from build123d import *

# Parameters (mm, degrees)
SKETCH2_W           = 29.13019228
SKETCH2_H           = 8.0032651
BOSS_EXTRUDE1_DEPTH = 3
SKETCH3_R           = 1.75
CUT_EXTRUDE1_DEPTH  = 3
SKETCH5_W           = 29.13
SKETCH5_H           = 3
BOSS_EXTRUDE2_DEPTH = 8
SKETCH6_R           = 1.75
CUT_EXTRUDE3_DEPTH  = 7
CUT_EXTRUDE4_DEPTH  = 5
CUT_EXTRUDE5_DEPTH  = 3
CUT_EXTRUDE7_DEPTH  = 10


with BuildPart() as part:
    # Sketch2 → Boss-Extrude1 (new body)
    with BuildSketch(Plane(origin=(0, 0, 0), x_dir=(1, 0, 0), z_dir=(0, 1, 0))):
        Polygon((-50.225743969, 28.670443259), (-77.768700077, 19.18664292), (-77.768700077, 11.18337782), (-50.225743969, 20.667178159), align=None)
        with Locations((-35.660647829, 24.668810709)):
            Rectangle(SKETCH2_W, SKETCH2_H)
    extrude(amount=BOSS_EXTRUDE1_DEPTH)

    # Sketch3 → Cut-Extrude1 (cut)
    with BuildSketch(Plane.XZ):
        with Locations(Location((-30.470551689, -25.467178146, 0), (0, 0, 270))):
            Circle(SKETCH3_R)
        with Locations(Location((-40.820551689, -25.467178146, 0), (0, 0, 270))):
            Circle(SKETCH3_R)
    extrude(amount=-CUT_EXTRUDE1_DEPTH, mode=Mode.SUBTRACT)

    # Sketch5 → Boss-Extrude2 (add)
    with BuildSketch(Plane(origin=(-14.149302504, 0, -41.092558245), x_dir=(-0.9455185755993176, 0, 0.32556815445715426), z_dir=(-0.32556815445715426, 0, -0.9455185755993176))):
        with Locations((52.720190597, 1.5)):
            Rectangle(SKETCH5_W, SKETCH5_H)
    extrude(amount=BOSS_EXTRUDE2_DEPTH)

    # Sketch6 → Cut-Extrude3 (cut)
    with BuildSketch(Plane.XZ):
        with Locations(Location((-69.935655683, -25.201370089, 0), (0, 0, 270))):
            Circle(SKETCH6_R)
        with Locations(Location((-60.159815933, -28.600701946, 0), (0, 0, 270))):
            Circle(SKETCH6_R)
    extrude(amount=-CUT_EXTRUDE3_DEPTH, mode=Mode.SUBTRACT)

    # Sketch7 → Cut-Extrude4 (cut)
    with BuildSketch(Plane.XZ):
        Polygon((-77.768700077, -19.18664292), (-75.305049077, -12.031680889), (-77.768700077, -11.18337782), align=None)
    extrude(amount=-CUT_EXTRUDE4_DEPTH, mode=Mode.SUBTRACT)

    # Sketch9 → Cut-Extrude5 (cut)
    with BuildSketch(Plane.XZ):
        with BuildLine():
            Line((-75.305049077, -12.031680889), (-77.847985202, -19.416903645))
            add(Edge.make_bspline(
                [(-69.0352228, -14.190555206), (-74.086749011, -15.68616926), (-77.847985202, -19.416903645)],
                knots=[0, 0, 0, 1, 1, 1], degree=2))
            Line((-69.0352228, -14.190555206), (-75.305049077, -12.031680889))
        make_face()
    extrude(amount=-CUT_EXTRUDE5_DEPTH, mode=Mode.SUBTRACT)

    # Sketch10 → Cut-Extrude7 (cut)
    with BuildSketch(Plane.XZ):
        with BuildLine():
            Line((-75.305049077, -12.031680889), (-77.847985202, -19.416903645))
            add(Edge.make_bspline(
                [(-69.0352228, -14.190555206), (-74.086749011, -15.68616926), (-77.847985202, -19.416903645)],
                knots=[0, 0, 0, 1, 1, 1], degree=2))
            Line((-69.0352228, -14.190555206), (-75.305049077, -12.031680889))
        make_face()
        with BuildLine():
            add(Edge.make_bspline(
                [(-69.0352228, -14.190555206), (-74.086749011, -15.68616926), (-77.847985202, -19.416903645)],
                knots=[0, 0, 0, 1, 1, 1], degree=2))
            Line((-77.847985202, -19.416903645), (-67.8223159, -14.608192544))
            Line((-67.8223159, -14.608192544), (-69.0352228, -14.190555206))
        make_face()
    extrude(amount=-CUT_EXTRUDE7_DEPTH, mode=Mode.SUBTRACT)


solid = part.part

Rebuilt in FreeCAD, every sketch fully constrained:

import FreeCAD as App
import Part
import Sketcher
Q = App.Units.Quantity

doc = App.newDocument("Part")
params = doc.addObject("Spreadsheet::Sheet", "Params")
for row, (alias, value) in enumerate([
    ("sketch1_length", "29.13 mm"),
    ("pad1_length", "3 mm"),
    ("sketch2_diameter", "3.5 mm"),
    ("pocket1_length", "3 mm"),
    ("sketch3_height", "3 mm"),
    ("sketch3_width", "29.13 mm"),
    ("pad2_length", "8 mm"),
    ("sketch4_diameter", "3.5 mm"),
    ("pocket2_length", "7 mm"),
    ("pocket3_length", "5 mm"),
    ("pocket4_length", "3 mm"),
    ("pocket5_length", "10 mm"),
], start=1):
    params.set(f"A{row}", alias)
    params.set(f"B{row}", "=" + value)
    params.setAlias(f"B{row}", alias)

body = doc.addObject("PartDesign::Body", "Body")

# Sketch on XZ plane
sketch1 = body.newObject("Sketcher::SketchObject", "Sketch")
sketch1.AttachmentSupport = (doc.getObject("XZ_Plane"), [""])
sketch1.MapMode = "FlatFace"
sketch1.addGeometry([
    Part.LineSegment(App.Vector(-50, -29, 0), App.Vector(-78, -19, 0)),  # 0
    Part.LineSegment(App.Vector(-78, -19, 0), App.Vector(-78, -11, 0)),  # 1
    Part.LineSegment(App.Vector(-78, -11, 0), App.Vector(-50, -21, 0)),  # 2
    Part.LineSegment(App.Vector(-50, -21, 0), App.Vector(-21, -21, 0)),  # 3
    Part.LineSegment(App.Vector(-21, -21, 0), App.Vector(-21, -29, 0)),  # 4
    Part.LineSegment(App.Vector(-21, -29, 0), App.Vector(-50, -29, 0)),  # 5
], False)
sketch1.addConstraint([
    Sketcher.Constraint("Coincident", 0, 2, 1, 1),
    Sketcher.Constraint("Coincident", 1, 2, 2, 1),
    Sketcher.Constraint("Coincident", 2, 2, 3, 1),
    Sketcher.Constraint("Coincident", 3, 2, 4, 1),
    Sketcher.Constraint("Coincident", 4, 2, 5, 1),
    Sketcher.Constraint("Coincident", 5, 2, 0, 1),
    Sketcher.Constraint("Vertical", 1),
    Sketcher.Constraint("Horizontal", 3),
    Sketcher.Constraint("Vertical", 4),
    Sketcher.Constraint("Horizontal", 5),
    Sketcher.Constraint("Parallel", 0, 2),
    Sketcher.Constraint("Vertical", 2, 2, 5, 2),
    Sketcher.Constraint("Angle", 0, Q("161 deg")),
    Sketcher.Constraint("Distance", 0, Q("29.13 mm")),
    Sketcher.Constraint("DistanceX", 0, 2, -1, 1, Q("77.7687 mm")),
    Sketcher.Constraint("DistanceX", 3, 1, 3, 2, Q("29.130192 mm")),
    Sketcher.Constraint("DistanceY", 1, 1, 1, 2, Q("8.003265 mm")),
    Sketcher.Constraint("DistanceY", 2, 2, -1, 1, Q("20.667178 mm")),
])
sketch1.setExpression("Constraints[13]", "Params.sketch1_length")
pad1 = body.newObject("PartDesign::Pad", "Pad")
pad1.Profile = sketch1
pad1.setExpression("Length", "Params.pad1_length")
pad1.Reversed = True

# Sketch on XZ plane
sketch2 = body.newObject("Sketcher::SketchObject", "Sketch001")
sketch2.AttachmentSupport = (doc.getObject("XZ_Plane"), [""])
sketch2.MapMode = "FlatFace"
sketch2.addGeometry([
    Part.Circle(App.Vector(-30.5, -25.5, 0), App.Vector(0, 0, 1), 1.8),
    Part.Circle(App.Vector(-40.8, -25.5, 0), App.Vector(0, 0, 1), 1.8),
], False)
sketch2.addConstraint([
    Sketcher.Constraint("Equal", 0, 1),
    Sketcher.Constraint("Horizontal", 0, 3, 1, 3),
    Sketcher.Constraint("Diameter", 0, Q("3.5 mm")),
    Sketcher.Constraint("DistanceX", 1, 3, 0, 3, Q("10.35 mm")),
    Sketcher.Constraint("DistanceX", 0, 3, -1, 1, Q("30.470552 mm")),
    Sketcher.Constraint("DistanceY", 0, 3, -1, 1, Q("25.467178 mm")),
])
sketch2.setExpression("Constraints[2]", "Params.sketch2_diameter")
pocket1 = body.newObject("PartDesign::Pocket", "Pocket")
pocket1.Profile = sketch2
pocket1.setExpression("Length", "Params.pocket1_length")

# Sketch on an angled plane
sketch3 = body.newObject("Sketcher::SketchObject", "Sketch002")
sketch3.Placement = App.Placement(App.Vector(-14.149303, 0, -41.092558), App.Rotation(App.Vector(-0.945518576, 0, 0.325568154), App.Vector(0, 1, 0), App.Vector(-0.325568154, 0, -0.945518576), "ZXY"))
sketch3.addGeometry([
    Part.LineSegment(App.Vector(38.2, 3, 0), App.Vector(38.2, 0, 0)),
    Part.LineSegment(App.Vector(38.2, 0, 0), App.Vector(67.3, 0, 0)),
    Part.LineSegment(App.Vector(67.3, 0, 0), App.Vector(67.3, 3, 0)),
    Part.LineSegment(App.Vector(67.3, 3, 0), App.Vector(38.2, 3, 0)),
], False)
sketch3.addConstraint([
    Sketcher.Constraint("Coincident", 0, 2, 1, 1),
    Sketcher.Constraint("Coincident", 1, 2, 2, 1),
    Sketcher.Constraint("Coincident", 2, 2, 3, 1),
    Sketcher.Constraint("Coincident", 3, 2, 0, 1),
    Sketcher.Constraint("Vertical", 0),
    Sketcher.Constraint("Horizontal", 1),
    Sketcher.Constraint("Vertical", 2),
    Sketcher.Constraint("Horizontal", 3),
    Sketcher.Constraint("PointOnObject", 0, 2, -1),
    Sketcher.Constraint("DistanceY", 0, 2, 0, 1, Q("3 mm")),
    Sketcher.Constraint("DistanceX", 1, 1, 1, 2, Q("29.13 mm")),
    Sketcher.Constraint("DistanceX", -1, 1, 0, 2, Q("38.155191 mm")),
])
sketch3.setExpression("Constraints[9]", "Params.sketch3_height")
sketch3.setExpression("Constraints[10]", "Params.sketch3_width")
pad2 = body.newObject("PartDesign::Pad", "Pad001")
pad2.Profile = sketch3
pad2.setExpression("Length", "Params.pad2_length")

# Sketch on XZ plane
sketch4 = body.newObject("Sketcher::SketchObject", "Sketch003")
sketch4.AttachmentSupport = (doc.getObject("XZ_Plane"), [""])
sketch4.MapMode = "FlatFace"
sketch4.addGeometry([
    Part.Circle(App.Vector(-69.9, -25.2, 0), App.Vector(0, 0, 1), 1.8),
    Part.Circle(App.Vector(-60.2, -28.6, 0), App.Vector(0, 0, 1), 1.8),
], False)
sketch4.addConstraint([
    Sketcher.Constraint("Equal", 0, 1),
    Sketcher.Constraint("Diameter", 0, Q("3.5 mm")),
    Sketcher.Constraint("DistanceY", 1, 3, -1, 1, Q("28.600702 mm")),
    Sketcher.Constraint("DistanceY", 0, 3, -1, 1, Q("25.20137 mm")),
    Sketcher.Constraint("DistanceX", 0, 3, 1, 3, Q("9.77584 mm")),
    Sketcher.Constraint("DistanceX", 0, 3, -1, 1, Q("69.935656 mm")),
])
sketch4.setExpression("Constraints[1]", "Params.sketch4_diameter")
pocket2 = body.newObject("PartDesign::Pocket", "Pocket001")
pocket2.Profile = sketch4
pocket2.setExpression("Length", "Params.pocket2_length")

# Sketch on XZ plane
sketch5 = body.newObject("Sketcher::SketchObject", "Sketch004")
sketch5.AttachmentSupport = (doc.getObject("XZ_Plane"), [""])
sketch5.MapMode = "FlatFace"
sketch5.addGeometry([
    Part.LineSegment(App.Vector(-77.8, -19.2, 0), App.Vector(-75.3, -12, 0)),
    Part.LineSegment(App.Vector(-75.3, -12, 0), App.Vector(-77.8, -11.2, 0)),
    Part.LineSegment(App.Vector(-77.8, -11.2, 0), App.Vector(-77.8, -19.2, 0)),
], False)
sketch5.addConstraint([
    Sketcher.Constraint("Coincident", 0, 2, 1, 1),
    Sketcher.Constraint("Coincident", 1, 2, 2, 1),
    Sketcher.Constraint("Coincident", 2, 2, 0, 1),
    Sketcher.Constraint("Vertical", 2),
    Sketcher.Constraint("Perpendicular", 0, 1),
    Sketcher.Constraint("Angle", 0, Q("71 deg")),
    Sketcher.Constraint("DistanceX", 1, 2, -1, 1, Q("77.7687 mm")),
    Sketcher.Constraint("Distance", 1, Q("2.605608 mm")),
    Sketcher.Constraint("DistanceY", 0, 2, -1, 1, Q("12.031681 mm")),
])
pocket3 = body.newObject("PartDesign::Pocket", "Pocket002")
pocket3.Profile = sketch5
pocket3.setExpression("Length", "Params.pocket3_length")

# Sketch on XZ plane
sketch6 = body.newObject("Sketcher::SketchObject", "Sketch005")
sketch6.AttachmentSupport = (doc.getObject("XZ_Plane"), [""])
sketch6.MapMode = "FlatFace"
sketch6.addGeometry([
    Part.LineSegment(App.Vector(-75.305049, -12.031681, 0), App.Vector(-77.847985, -19.416904, 0)),
    Part.BSplineCurve([App.Vector(-69.035223, -14.190555, 0), App.Vector(-74.086749, -15.686169, 0), App.Vector(-77.847985, -19.416904, 0)], [3, 3], [0, 1], False, 2, [1, 1, 1], False),
    Part.LineSegment(App.Vector(-69.035223, -14.190555, 0), App.Vector(-75.305049, -12.031681, 0)),
], False)
sketch6.addConstraint([
    Sketcher.Constraint("Block", 1),
    Sketcher.Constraint("Coincident", 0, 2, 1, 2),
    Sketcher.Constraint("Coincident", 1, 1, 2, 1),
    Sketcher.Constraint("Coincident", 2, 2, 0, 1),
    Sketcher.Constraint("DistanceX", 2, 2, -1, 1, Q("75.305049 mm")),
    Sketcher.Constraint("DistanceY", 2, 2, -1, 1, Q("12.031681 mm")),
])
pocket4 = body.newObject("PartDesign::Pocket", "Pocket003")
pocket4.Profile = sketch6
pocket4.setExpression("Length", "Params.pocket4_length")

# Sketch on XZ plane
sketch7 = body.newObject("Sketcher::SketchObject", "Sketch006")
sketch7.AttachmentSupport = (doc.getObject("XZ_Plane"), [""])
sketch7.MapMode = "FlatFace"
sketch7.addGeometry([
    Part.LineSegment(App.Vector(-75.3, -12, 0), App.Vector(-77.8, -19.4, 0)),
    Part.LineSegment(App.Vector(-77.8, -19.4, 0), App.Vector(-67.8, -14.6, 0)),
    Part.LineSegment(App.Vector(-67.8, -14.6, 0), App.Vector(-69, -14.2, 0)),
    Part.LineSegment(App.Vector(-69, -14.2, 0), App.Vector(-75.3, -12, 0)),
], False)
sketch7.addConstraint([
    Sketcher.Constraint("Coincident", 0, 2, 1, 1),
    Sketcher.Constraint("Coincident", 1, 2, 2, 1),
    Sketcher.Constraint("Coincident", 2, 2, 3, 1),
    Sketcher.Constraint("Coincident", 3, 2, 0, 1),
    Sketcher.Constraint("Perpendicular", 0, 2),
    Sketcher.Constraint("Parallel", 2, 3),
    Sketcher.Constraint("Angle", 0, Q("-109 deg")),
    Sketcher.Constraint("Distance", 1, Q("11.119251 mm")),
    Sketcher.Constraint("DistanceX", 3, 2, -1, 1, Q("75.305049 mm")),
    Sketcher.Constraint("DistanceY", 3, 2, -1, 1, Q("12.031681 mm")),
    Sketcher.Constraint("DistanceX", 0, 2, 1, 2, Q("10.025669 mm")),
    Sketcher.Constraint("DistanceY", 0, 2, 2, 2, Q("5.226348 mm")),
])
pocket5 = body.newObject("PartDesign::Pocket", "Pocket004")
pocket5.Profile = sketch7
pocket5.setExpression("Length", "Params.pocket5_length")

doc.recompute()
